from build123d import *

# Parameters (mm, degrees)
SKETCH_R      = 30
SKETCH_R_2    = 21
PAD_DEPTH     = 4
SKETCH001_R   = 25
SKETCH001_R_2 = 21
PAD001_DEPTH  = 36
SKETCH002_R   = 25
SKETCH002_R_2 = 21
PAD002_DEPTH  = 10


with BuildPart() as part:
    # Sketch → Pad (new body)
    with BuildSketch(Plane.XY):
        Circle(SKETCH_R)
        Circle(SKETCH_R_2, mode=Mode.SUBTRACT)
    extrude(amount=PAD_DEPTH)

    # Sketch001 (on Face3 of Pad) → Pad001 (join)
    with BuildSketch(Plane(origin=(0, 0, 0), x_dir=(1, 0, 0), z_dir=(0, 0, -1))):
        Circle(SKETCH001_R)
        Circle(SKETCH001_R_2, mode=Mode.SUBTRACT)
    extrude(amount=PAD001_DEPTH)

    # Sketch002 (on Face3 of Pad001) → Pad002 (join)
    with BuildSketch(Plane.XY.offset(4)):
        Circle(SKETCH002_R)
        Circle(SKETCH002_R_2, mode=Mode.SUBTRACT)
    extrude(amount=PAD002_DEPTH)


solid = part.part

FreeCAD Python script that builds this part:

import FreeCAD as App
import Part
import Sketcher
Q = App.Units.Quantity

doc = App.newDocument("Part")
params = doc.addObject("Spreadsheet::Sheet", "Params")
for row, (alias, value) in enumerate([
    ("sketch1_diameter", "60 mm"),
    ("sketch1_diameter2", "42 mm"),
    ("pad1_length", "4 mm"),
    ("sketch2_diameter", "50 mm"),
    ("sketch2_diameter2", "42 mm"),
    ("pad2_length", "36 mm"),
    ("sketch3_diameter", "50 mm"),
    ("sketch3_diameter2", "42 mm"),
    ("pad3_length", "10 mm"),
], start=1):
    params.set(f"A{row}", alias)
    params.set(f"B{row}", "=" + value)
    params.setAlias(f"B{row}", alias)

body = doc.addObject("PartDesign::Body", "Body")

sketch1 = body.newObject("Sketcher::SketchObject", "Sketch")
sketch1.AttachmentSupport = (doc.getObject("XY_Plane"), [""])
sketch1.MapMode = "FlatFace"
sketch1.addGeometry([
    Part.Circle(App.Vector(0, 0, 0), App.Vector(0, 0, 1), 30),
    Part.Circle(App.Vector(0, 0, 0), App.Vector(0, 0, 1), 21),
], False)
sketch1.addConstraint([
    Sketcher.Constraint("Coincident", 0, 3, -1, 1),
    Sketcher.Constraint("Coincident", 1, 3, -1, 1),
    Sketcher.Constraint("Diameter", 0, Q("60 mm")),
    Sketcher.Constraint("Diameter", 1, Q("42 mm")),
])
sketch1.setExpression("Constraints[2]", "Params.sketch1_diameter")
sketch1.setExpression("Constraints[3]", "Params.sketch1_diameter2")
pad1 = body.newObject("PartDesign::Pad", "Pad")
pad1.Profile = sketch1
pad1.setExpression("Length", "Params.pad1_length")

sketch2 = body.newObject("Sketcher::SketchObject", "Sketch001")
sketch2.AttachmentSupport = (doc.getObject("XY_Plane"), [""])
sketch2.MapMode = "FlatFace"
sketch2.addGeometry([
    Part.Circle(App.Vector(0, 0, 0), App.Vector(0, 0, 1), 25),
    Part.Circle(App.Vector(0, 0, 0), App.Vector(0, 0, 1), 21),
], False)
sketch2.addConstraint([
    Sketcher.Constraint("Coincident", 0, 3, -1, 1),
    Sketcher.Constraint("Coincident", 1, 3, -1, 1),
    Sketcher.Constraint("Diameter", 0, Q("50 mm")),
    Sketcher.Constraint("Diameter", 1, Q("42 mm")),
])
sketch2.setExpression("Constraints[2]", "Params.sketch2_diameter")
sketch2.setExpression("Constraints[3]", "Params.sketch2_diameter2")
pad2 = body.newObject("PartDesign::Pad", "Pad001")
pad2.Profile = sketch2
pad2.setExpression("Length", "Params.pad2_length")
pad2.Reversed = True

sketch3 = body.newObject("Sketcher::SketchObject", "Sketch002")
sketch3.AttachmentSupport = (doc.getObject("XY_Plane"), [""])
sketch3.MapMode = "FlatFace"
sketch3.AttachmentOffset = App.Placement(App.Vector(0, 0, 4), App.Rotation())
sketch3.addGeometry([
    Part.Circle(App.Vector(0, 0, 0), App.Vector(0, 0, 1), 25),
    Part.Circle(App.Vector(0, 0, 0), App.Vector(0, 0, 1), 21),
], False)
sketch3.addConstraint([
    Sketcher.Constraint("Coincident", 0, 3, -1, 1),
    Sketcher.Constraint("Coincident", 1, 3, -1, 1),
    Sketcher.Constraint("Diameter", 0, Q("50 mm")),
    Sketcher.Constraint("Diameter", 1, Q("42 mm")),
])
sketch3.setExpression("Constraints[2]", "Params.sketch3_diameter")
sketch3.setExpression("Constraints[3]", "Params.sketch3_diameter2")
pad3 = body.newObject("PartDesign::Pad", "Pad002")
pad3.Profile = sketch3
pad3.setExpression("Length", "Params.pad3_length")

doc.recompute()
